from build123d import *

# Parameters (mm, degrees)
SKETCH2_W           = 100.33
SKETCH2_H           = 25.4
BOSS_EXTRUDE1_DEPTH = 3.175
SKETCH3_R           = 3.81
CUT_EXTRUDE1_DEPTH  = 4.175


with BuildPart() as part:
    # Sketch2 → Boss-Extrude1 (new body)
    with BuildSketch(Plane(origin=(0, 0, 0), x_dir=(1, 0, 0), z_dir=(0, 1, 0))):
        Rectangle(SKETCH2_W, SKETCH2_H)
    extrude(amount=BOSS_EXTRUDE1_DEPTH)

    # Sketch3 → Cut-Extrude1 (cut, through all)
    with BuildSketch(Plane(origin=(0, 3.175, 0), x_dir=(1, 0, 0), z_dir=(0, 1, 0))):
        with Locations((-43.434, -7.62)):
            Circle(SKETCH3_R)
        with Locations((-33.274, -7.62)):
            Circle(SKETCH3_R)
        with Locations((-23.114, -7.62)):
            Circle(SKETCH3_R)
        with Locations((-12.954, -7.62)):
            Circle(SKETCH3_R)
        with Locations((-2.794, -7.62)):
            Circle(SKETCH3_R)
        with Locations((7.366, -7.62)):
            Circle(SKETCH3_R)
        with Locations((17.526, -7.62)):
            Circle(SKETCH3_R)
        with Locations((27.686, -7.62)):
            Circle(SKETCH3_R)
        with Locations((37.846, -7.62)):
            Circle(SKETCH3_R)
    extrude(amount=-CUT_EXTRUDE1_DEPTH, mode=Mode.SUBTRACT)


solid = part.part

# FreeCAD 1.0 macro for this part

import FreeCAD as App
import Part
import Sketcher
Q = App.Units.Quantity


def add_polygon(sketch, points):
    """Adds a closed chain of lines whose ends are joined by coincident constraints."""
    first, n = sketch.GeometryCount, len(points)
    for a, b in zip(points, points[1:] + points[:1]):
        sketch.addGeometry(Part.LineSegment(App.Vector(*a, 0), App.Vector(*b, 0)), False)
    for i in range(n):
        sketch.addConstraint(Sketcher.Constraint("Coincident", first + i, 2, first + (i + 1) % n, 1))

doc = App.newDocument("Part")
body = doc.addObject("PartDesign::Body", "Body")

# Sketch on XZ plane
sketch1 = body.newObject("Sketcher::SketchObject", "Sketch")
sketch1.AttachmentSupport = (doc.getObject("XZ_Plane"), [""])
sketch1.MapMode = "FlatFace"
add_polygon(sketch1, [(-50, -13), (-50, 13), (50, 13), (50, -13)])  # lines 0-3
sketch1.addConstraint(Sketcher.Constraint("Vertical", 0))
sketch1.addConstraint(Sketcher.Constraint("Horizontal", 1))
sketch1.addConstraint(Sketcher.Constraint("Vertical", 2))
sketch1.addConstraint(Sketcher.Constraint("Horizontal", 3))
sketch1.addConstraint(Sketcher.Constraint("Symmetric", 0, 2, 2, 2, -1, 1))
sketch1.addConstraint(Sketcher.Constraint("DistanceY", 0, 1, 0, 2, Q("1 in")))
sketch1.addConstraint(Sketcher.Constraint("DistanceX", 1, 1, 1, 2, Q("3.95 in")))
pad1 = body.newObject("PartDesign::Pad", "Pad")
pad1.Profile = sketch1
pad1.Length = Q("0.125 in")
pad1.Reversed = True

# Sketch on XZ plane
sketch2 = body.newObject("Sketcher::SketchObject", "Sketch001")
sketch2.AttachmentSupport = (doc.getObject("XZ_Plane"), [""])
sketch2.MapMode = "FlatFace"
sketch2.AttachmentOffset = App.Placement(App.Vector(0, 0, -0.125 * 25.4), App.Rotation())
sketch2.addGeometry(Part.Circle(App.Vector(-43.4, 7.6, 0), App.Vector(0, 0, 1), 3.8), False)
sketch2.addGeometry(Part.Circle(App.Vector(-33.3, 7.6, 0), App.Vector(0, 0, 1), 3.8), False)
sketch2.addGeometry(Part.Circle(App.Vector(-23.1, 7.6, 0), App.Vector(0, 0, 1), 3.8), False)
sketch2.addGeometry(Part.Circle(App.Vector(-13, 7.6, 0), App.Vector(0, 0, 1), 3.8), False)
sketch2.addGeometry(Part.Circle(App.Vector(-2.8, 7.6, 0), App.Vector(0, 0, 1), 3.8), False)
sketch2.addGeometry(Part.Circle(App.Vector(7.4, 7.6, 0), App.Vector(0, 0, 1), 3.8), False)
sketch2.addGeometry(Part.Circle(App.Vector(17.5, 7.6, 0), App.Vector(0, 0, 1), 3.8), False)
sketch2.addGeometry(Part.Circle(App.Vector(27.7, 7.6, 0), App.Vector(0, 0, 1), 3.8), False)
sketch2.addGeometry(Part.Circle(App.Vector(37.8, 7.6, 0), App.Vector(0, 0, 1), 3.8), False)
sketch2.addConstraint(Sketcher.Constraint("Equal", 0, 1))
sketch2.addConstraint(Sketcher.Constraint("Equal", 1, 2))
sketch2.addConstraint(Sketcher.Constraint("Equal", 2, 3))
sketch2.addConstraint(Sketcher.Constraint("Equal", 3, 4))
sketch2.addConstraint(Sketcher.Constraint("Equal", 4, 5))
sketch2.addConstraint(Sketcher.Constraint("Equal", 5, 6))
sketch2.addConstraint(Sketcher.Constraint("Equal", 6, 7))
sketch2.addConstraint(Sketcher.Constraint("Equal", 7, 8))
sketch2.addConstraint(Sketcher.Constraint("Horizontal", 0, 3, 1, 3))
sketch2.addConstraint(Sketcher.Constraint("Horizontal", 1, 3, 2, 3))
sketch2.addConstraint(Sketcher.Constraint("Horizontal", 2, 3, 3, 3))
sketch2.addConstraint(Sketcher.Constraint("Horizontal", 3, 3, 4, 3))
sketch2.addConstraint(Sketcher.Constraint("Horizontal", 4, 3, 5, 3))
sketch2.addConstraint(Sketcher.Constraint("Horizontal", 5, 3, 6, 3))
sketch2.addConstraint(Sketcher.Constraint("Horizontal", 6, 3, 7, 3))
sketch2.addConstraint(Sketcher.Constraint("Horizontal", 7, 3, 8, 3))
sketch2.addConstraint(Sketcher.Constraint("Diameter", 0, Q("0.3 in")))
sketch2.addConstraint(Sketcher.Constraint("DistanceX", 0, 3, 5, 3, Q("2 in")))
sketch2.addConstraint(Sketcher.Constraint("DistanceX", 1, 3, 6, 3, Q("2 in")))
sketch2.addConstraint(Sketcher.Constraint("DistanceX", 2, 3, 7, 3, Q("2 in")))
sketch2.addConstraint(Sketcher.Constraint("DistanceX", 3, 3, 8, 3, Q("2 in")))
sketch2.addConstraint(Sketcher.Constraint("DistanceY", -1, 1, 0, 3, Q("0.3 in")))
sketch2.addConstraint(Sketcher.Constraint("DistanceX", 0, 3, 1, 3, Q("0.4 in")))
sketch2.addConstraint(Sketcher.Constraint("DistanceX", 1, 3, 2, 3, Q("0.4 in")))
sketch2.addConstraint(Sketcher.Constraint("DistanceX", 2, 3, 3, 3, Q("0.4 in")))
sketch2.addConstraint(Sketcher.Constraint("DistanceX", 3, 3, 4, 3, Q("0.4 in")))
sketch2.addConstraint(Sketcher.Constraint("DistanceX", 0, 3, -1, 1, Q("1.71 in")))
pocket1 = body.newObject("PartDesign::Pocket", "Pocket")
pocket1.Profile = sketch2
pocket1.Type = "ThroughAll"
pocket1.Reversed = True

doc.recompute()
